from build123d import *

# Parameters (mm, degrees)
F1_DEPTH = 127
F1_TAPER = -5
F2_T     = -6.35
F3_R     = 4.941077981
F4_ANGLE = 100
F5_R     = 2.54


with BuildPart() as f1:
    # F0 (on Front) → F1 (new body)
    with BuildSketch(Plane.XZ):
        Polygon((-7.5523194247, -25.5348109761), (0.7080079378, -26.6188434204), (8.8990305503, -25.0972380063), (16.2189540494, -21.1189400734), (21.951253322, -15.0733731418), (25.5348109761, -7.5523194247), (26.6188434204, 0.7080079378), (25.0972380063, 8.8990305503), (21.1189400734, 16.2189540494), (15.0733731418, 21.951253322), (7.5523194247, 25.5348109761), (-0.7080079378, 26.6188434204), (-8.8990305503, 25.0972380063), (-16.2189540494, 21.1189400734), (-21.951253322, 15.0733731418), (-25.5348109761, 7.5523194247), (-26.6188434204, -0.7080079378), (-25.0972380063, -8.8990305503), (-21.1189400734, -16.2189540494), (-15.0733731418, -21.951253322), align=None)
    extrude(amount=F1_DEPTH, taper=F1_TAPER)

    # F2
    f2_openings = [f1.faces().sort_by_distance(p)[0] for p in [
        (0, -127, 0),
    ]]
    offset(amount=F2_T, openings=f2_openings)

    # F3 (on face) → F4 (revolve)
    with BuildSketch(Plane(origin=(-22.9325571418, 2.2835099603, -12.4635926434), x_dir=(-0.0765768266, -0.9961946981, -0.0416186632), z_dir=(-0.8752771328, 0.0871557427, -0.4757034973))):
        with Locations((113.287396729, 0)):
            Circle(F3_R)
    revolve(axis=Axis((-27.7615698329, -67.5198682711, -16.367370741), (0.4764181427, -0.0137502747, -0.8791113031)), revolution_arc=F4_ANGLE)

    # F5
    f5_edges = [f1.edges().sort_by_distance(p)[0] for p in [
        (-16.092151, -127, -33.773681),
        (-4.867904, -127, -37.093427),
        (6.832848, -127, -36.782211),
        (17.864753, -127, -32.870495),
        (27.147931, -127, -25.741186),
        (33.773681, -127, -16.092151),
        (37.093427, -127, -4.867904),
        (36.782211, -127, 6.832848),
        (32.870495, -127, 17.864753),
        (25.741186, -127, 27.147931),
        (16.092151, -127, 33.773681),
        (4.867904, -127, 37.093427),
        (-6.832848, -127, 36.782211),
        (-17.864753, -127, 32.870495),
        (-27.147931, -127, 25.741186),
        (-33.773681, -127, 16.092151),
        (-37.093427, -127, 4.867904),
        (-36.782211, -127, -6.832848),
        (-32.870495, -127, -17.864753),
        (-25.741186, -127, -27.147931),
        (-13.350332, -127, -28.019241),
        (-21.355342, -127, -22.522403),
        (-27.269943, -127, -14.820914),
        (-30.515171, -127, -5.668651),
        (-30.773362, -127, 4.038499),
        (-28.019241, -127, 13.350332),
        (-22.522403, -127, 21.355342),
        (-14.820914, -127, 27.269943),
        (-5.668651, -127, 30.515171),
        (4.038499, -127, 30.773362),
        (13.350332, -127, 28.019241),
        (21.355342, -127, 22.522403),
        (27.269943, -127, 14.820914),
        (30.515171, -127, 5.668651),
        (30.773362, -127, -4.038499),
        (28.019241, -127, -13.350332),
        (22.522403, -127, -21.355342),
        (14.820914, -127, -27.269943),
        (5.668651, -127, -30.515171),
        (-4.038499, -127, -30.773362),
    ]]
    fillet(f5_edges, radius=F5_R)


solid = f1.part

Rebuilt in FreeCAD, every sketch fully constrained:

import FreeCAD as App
import Part
import Sketcher
Q = App.Units.Quantity


def edges_at(feature, points):
    """Names of the edges that pass closest to the given points."""
    edges = feature.Shape.Edges
    near = lambda p: min(range(len(edges)), key=lambda i: edges[i].distToShape(Part.Vertex(*p))[0])
    return sorted({f"Edge{near(p) + 1}" for p in points})


def faces_at(feature, points):
    """Names of the faces that lie closest to the given points."""
    faces = feature.Shape.Faces
    near = lambda p: min(range(len(faces)), key=lambda i: faces[i].distToShape(Part.Vertex(*p))[0])
    return sorted({f"Face{near(p) + 1}" for p in points})

doc = App.newDocument("Part")
body = doc.addObject("PartDesign::Body", "Body")

# Sketch on XZ plane
sketch1 = body.newObject("Sketcher::SketchObject", "Sketch")
sketch1.AttachmentSupport = (doc.getObject("XZ_Plane"), [""])
sketch1.MapMode = "FlatFace"
sketch1.addGeometry(Part.LineSegment(App.Vector(-7.552319, -25.534811, 0), App.Vector(0.708008, -26.618843, 0)), False)
sketch1.addGeometry(Part.LineSegment(App.Vector(0.708008, -26.618843, 0), App.Vector(8.899031, -25.097238, 0)), False)
sketch1.addGeometry(Part.LineSegment(App.Vector(8.899031, -25.097238, 0), App.Vector(16.218954, -21.11894, 0)), False)
sketch1.addGeometry(Part.LineSegment(App.Vector(16.218954, -21.11894, 0), App.Vector(21.951253, -15.073373, 0)), False)
sketch1.addGeometry(Part.LineSegment(App.Vector(21.951253, -15.073373, 0), App.Vector(25.534811, -7.552319, 0)), False)
sketch1.addGeometry(Part.LineSegment(App.Vector(25.534811, -7.552319, 0), App.Vector(26.618843, 0.708008, 0)), False)
sketch1.addGeometry(Part.LineSegment(App.Vector(26.618843, 0.708008, 0), App.Vector(25.097238, 8.899031, 0)), False)
sketch1.addGeometry(Part.LineSegment(App.Vector(25.097238, 8.899031, 0), App.Vector(21.11894, 16.218954, 0)), False)
sketch1.addGeometry(Part.LineSegment(App.Vector(21.11894, 16.218954, 0), App.Vector(15.073373, 21.951253, 0)), False)
sketch1.addGeometry(Part.LineSegment(App.Vector(15.073373, 21.951253, 0), App.Vector(7.552319, 25.534811, 0)), False)
sketch1.addGeometry(Part.LineSegment(App.Vector(7.552319, 25.534811, 0), App.Vector(-0.708008, 26.618843, 0)), False)
sketch1.addGeometry(Part.LineSegment(App.Vector(-0.708008, 26.618843, 0), App.Vector(-8.899031, 25.097238, 0)), False)
sketch1.addGeometry(Part.LineSegment(App.Vector(-8.899031, 25.097238, 0), App.Vector(-16.218954, 21.11894, 0)), False)
sketch1.addGeometry(Part.LineSegment(App.Vector(-16.218954, 21.11894, 0), App.Vector(-21.951253, 15.073373, 0)), False)
sketch1.addGeometry(Part.LineSegment(App.Vector(-21.951253, 15.073373, 0), App.Vector(-25.534811, 7.552319, 0)), False)
sketch1.addGeometry(Part.LineSegment(App.Vector(-25.534811, 7.552319, 0), App.Vector(-26.618843, -0.708008, 0)), False)
sketch1.addGeometry(Part.LineSegment(App.Vector(-26.618843, -0.708008, 0), App.Vector(-25.097238, -8.899031, 0)), False)
sketch1.addGeometry(Part.LineSegment(App.Vector(-25.097238, -8.899031, 0), App.Vector(-21.11894, -16.218954, 0)), False)
sketch1.addGeometry(Part.LineSegment(App.Vector(-21.11894, -16.218954, 0), App.Vector(-15.073373, -21.951253, 0)), False)
sketch1.addGeometry(Part.LineSegment(App.Vector(-15.073373, -21.951253, 0), App.Vector(-7.552319, -25.534811, 0)), False)
sketch1.addConstraint(Sketcher.Constraint("Coincident", 0, 2, 1, 1))
sketch1.addConstraint(Sketcher.Constraint("Coincident", 1, 2, 2, 1))
sketch1.addConstraint(Sketcher.Constraint("Coincident", 2, 2, 3, 1))
sketch1.addConstraint(Sketcher.Constraint("Coincident", 3, 2, 4, 1))
sketch1.addConstraint(Sketcher.Constraint("Coincident", 4, 2, 5, 1))
sketch1.addConstraint(Sketcher.Constraint("Coincident", 5, 2, 6, 1))
sketch1.addConstraint(Sketcher.Constraint("Coincident", 6, 2, 7, 1))
sketch1.addConstraint(Sketcher.Constraint("Coincident", 7, 2, 8, 1))
sketch1.addConstraint(Sketcher.Constraint("Coincident", 8, 2, 9, 1))
sketch1.addConstraint(Sketcher.Constraint("Coincident", 9, 2, 10, 1))
sketch1.addConstraint(Sketcher.Constraint("Coincident", 10, 2, 11, 1))
sketch1.addConstraint(Sketcher.Constraint("Coincident", 11, 2, 12, 1))
sketch1.addConstraint(Sketcher.Constraint("Coincident", 12, 2, 13, 1))
sketch1.addConstraint(Sketcher.Constraint("Coincident", 13, 2, 14, 1))
sketch1.addConstraint(Sketcher.Constraint("Coincident", 14, 2, 15, 1))
sketch1.addConstraint(Sketcher.Constraint("Coincident", 15, 2, 16, 1))
sketch1.addConstraint(Sketcher.Constraint("Coincident", 16, 2, 17, 1))
sketch1.addConstraint(Sketcher.Constraint("Coincident", 17, 2, 18, 1))
sketch1.addConstraint(Sketcher.Constraint("Coincident", 18, 2, 19, 1))
sketch1.addConstraint(Sketcher.Constraint("Coincident", 19, 2, 0, 1))
sketch1.addConstraint(Sketcher.Constraint("Symmetric", 0, 2, 10, 2, -1, 1))
sketch1.addConstraint(Sketcher.Constraint("Symmetric", 1, 2, 11, 2, -1, 1))
sketch1.addConstraint(Sketcher.Constraint("Symmetric", 2, 2, 12, 2, -1, 1))
sketch1.addConstraint(Sketcher.Constraint("Symmetric", 3, 2, 13, 2, -1, 1))
sketch1.addConstraint(Sketcher.Constraint("Symmetric", 4, 2, 14, 2, -1, 1))
sketch1.addConstraint(Sketcher.Constraint("Symmetric", 5, 2, 15, 2, -1, 1))
sketch1.addConstraint(Sketcher.Constraint("Symmetric", 6, 2, 16, 2, -1, 1))
sketch1.addConstraint(Sketcher.Constraint("Symmetric", 7, 2, 17, 2, -1, 1))
sketch1.addConstraint(Sketcher.Constraint("Symmetric", 8, 2, 18, 2, -1, 1))
sketch1.addConstraint(Sketcher.Constraint("Symmetric", 9, 2, 19, 2, -1, 1))
sketch1.addConstraint(Sketcher.Constraint("Perpendicular", 0, 5))
sketch1.addConstraint(Sketcher.Constraint("Perpendicular", 1, 6))
sketch1.addConstraint(Sketcher.Constraint("Perpendicular", 2, 7))
sketch1.addConstraint(Sketcher.Constraint("Perpendicular", 3, 8))
sketch1.addConstraint(Sketcher.Constraint("Perpendicular", 4, 9))
sketch1.addConstraint(Sketcher.Constraint("Equal", 0, 1))
sketch1.addConstraint(Sketcher.Constraint("Equal", 1, 2))
sketch1.addConstraint(Sketcher.Constraint("Equal", 2, 3))
sketch1.addConstraint(Sketcher.Constraint("Equal", 3, 4))
sketch1.addConstraint(Sketcher.Constraint("Equal", 4, 5))
sketch1.addConstraint(Sketcher.Constraint("Equal", 5, 6))
sketch1.addConstraint(Sketcher.Constraint("Equal", 6, 7))
sketch1.addConstraint(Sketcher.Constraint("Equal", 7, 8))
sketch1.addConstraint(Sketcher.Constraint("Equal", 8, 9))
sketch1.addConstraint(Sketcher.Constraint("DistanceX", 2, 2, 3, 2, 5.732299))
sketch1.addConstraint(Sketcher.Constraint("DistanceX", -1, 1, 1, 2, 8.899031))
sketch1.addConstraint(Sketcher.Constraint("DistanceY", 1, 2, -1, 1, 25.097238))
sketch1.addConstraint(Sketcher.Constraint("DistanceY", 2, 2, -1, 1, 21.11894))
sketch1.addConstraint(Sketcher.Constraint("DistanceX", -1, 1, 4, 2, 25.534811))
sketch1.addConstraint(Sketcher.Constraint("DistanceY", 4, 2, -1, 1, 7.552319))
pad1 = body.newObject("PartDesign::Pad", "Pad")
pad1.Profile = sketch1
pad1.Length = Q("5 in")
pad1.TaperAngle = 5
doc.recompute()

thickness = body.newObject("PartDesign::Thickness", "Thickness")
thickness.Base = (pad1, faces_at(pad1, [(0, -127, 0)]))
thickness.Value = Q("0.25 in")
thickness.Reversed = True
thickness.Join = "Arc"

# Sketch on an angled plane
sketch2 = body.newObject("Sketcher::SketchObject", "Sketch001")
sketch2.Placement = App.Placement(App.Vector(-22.932557, 2.28351, -12.463593), App.Rotation(App.Vector(-0.076576827, -0.996194698, -0.041618663), App.Vector(-0.477520607, 0, 0.878620549), App.Vector(-0.875277133, 0.087155743, -0.475703497), "ZXY"))
sketch2.addGeometry(Part.Circle(App.Vector(113.287397, 0, 0), App.Vector(0, 0, 1), 4.941078), False)
sketch2.addGeometry(Part.LineSegment(App.Vector(70.062737, -0.596678, 0), App.Vector(70.200765, -10.595725, 0)), True)  # axis
sketch2.addConstraint(Sketcher.Constraint("PointOnObject", 0, 3, -1))
sketch2.addConstraint(Sketcher.Constraint("Diameter", 0, 9.882156))
sketch2.addConstraint(Sketcher.Constraint("Distance", 1, 10.0))
sketch2.addConstraint(Sketcher.Constraint("DistanceY", 1, 1, -1, 1, 0.596678))
sketch2.addConstraint(Sketcher.Constraint("DistanceX", 1, 1, 0, 3, 43.22466))
sketch2.addConstraint(Sketcher.Constraint("DistanceX", 1, 2, 0, 3, 43.086632))
sketch2.addConstraint(Sketcher.Constraint("DistanceX", -1, 1, 0, 3, 113.287397))
revolution = body.newObject("PartDesign::Revolution", "Revolution")
revolution.Profile = sketch2
revolution.ReferenceAxis = (sketch2, ["Axis0"])
revolution.Angle = 100
doc.recompute()

fillet = body.newObject("PartDesign::Fillet", "Fillet")
fillet.Base = (revolution, edges_at(revolution, [
    (-16.092, -127, -33.774),
    (-4.868, -127, -37.093),
    (6.833, -127, -36.782),
    (17.865, -127, -32.87),
    (27.148, -127, -25.741),
    (33.774, -127, -16.092),
    (37.093, -127, -4.868),
    (36.782, -127, 6.833),
    (32.87, -127, 17.865),
    (25.741, -127, 27.148),
    (16.092, -127, 33.774),
    (4.868, -127, 37.093),
    (-6.833, -127, 36.782),
    (-17.865, -127, 32.87),
    (-27.148, -127, 25.741),
    (-33.774, -127, 16.092),
    (-37.093, -127, 4.868),
    (-36.782, -127, -6.833),
    (-32.87, -127, -17.865),
    (-25.741, -127, -27.148),
    (-13.35, -127, -28.019),
    (-21.355, -127, -22.522),
    (-27.27, -127, -14.821),
    (-30.515, -127, -5.669),
    (-30.773, -127, 4.038),
    (-28.019, -127, 13.35),
    (-22.522, -127, 21.355),
    (-14.821, -127, 27.27),
    (-5.669, -127, 30.515),
    (4.038, -127, 30.773),
    (13.35, -127, 28.019),
    (21.355, -127, 22.522),
    (27.27, -127, 14.821),
    (30.515, -127, 5.669),
    (30.773, -127, -4.038),
    (28.019, -127, -13.35),
    (22.522, -127, -21.355),
    (14.821, -127, -27.27),
    (5.669, -127, -30.515),
    (-4.038, -127, -30.773),
]))
fillet.Radius = Q("0.1 in")

doc.recompute()
